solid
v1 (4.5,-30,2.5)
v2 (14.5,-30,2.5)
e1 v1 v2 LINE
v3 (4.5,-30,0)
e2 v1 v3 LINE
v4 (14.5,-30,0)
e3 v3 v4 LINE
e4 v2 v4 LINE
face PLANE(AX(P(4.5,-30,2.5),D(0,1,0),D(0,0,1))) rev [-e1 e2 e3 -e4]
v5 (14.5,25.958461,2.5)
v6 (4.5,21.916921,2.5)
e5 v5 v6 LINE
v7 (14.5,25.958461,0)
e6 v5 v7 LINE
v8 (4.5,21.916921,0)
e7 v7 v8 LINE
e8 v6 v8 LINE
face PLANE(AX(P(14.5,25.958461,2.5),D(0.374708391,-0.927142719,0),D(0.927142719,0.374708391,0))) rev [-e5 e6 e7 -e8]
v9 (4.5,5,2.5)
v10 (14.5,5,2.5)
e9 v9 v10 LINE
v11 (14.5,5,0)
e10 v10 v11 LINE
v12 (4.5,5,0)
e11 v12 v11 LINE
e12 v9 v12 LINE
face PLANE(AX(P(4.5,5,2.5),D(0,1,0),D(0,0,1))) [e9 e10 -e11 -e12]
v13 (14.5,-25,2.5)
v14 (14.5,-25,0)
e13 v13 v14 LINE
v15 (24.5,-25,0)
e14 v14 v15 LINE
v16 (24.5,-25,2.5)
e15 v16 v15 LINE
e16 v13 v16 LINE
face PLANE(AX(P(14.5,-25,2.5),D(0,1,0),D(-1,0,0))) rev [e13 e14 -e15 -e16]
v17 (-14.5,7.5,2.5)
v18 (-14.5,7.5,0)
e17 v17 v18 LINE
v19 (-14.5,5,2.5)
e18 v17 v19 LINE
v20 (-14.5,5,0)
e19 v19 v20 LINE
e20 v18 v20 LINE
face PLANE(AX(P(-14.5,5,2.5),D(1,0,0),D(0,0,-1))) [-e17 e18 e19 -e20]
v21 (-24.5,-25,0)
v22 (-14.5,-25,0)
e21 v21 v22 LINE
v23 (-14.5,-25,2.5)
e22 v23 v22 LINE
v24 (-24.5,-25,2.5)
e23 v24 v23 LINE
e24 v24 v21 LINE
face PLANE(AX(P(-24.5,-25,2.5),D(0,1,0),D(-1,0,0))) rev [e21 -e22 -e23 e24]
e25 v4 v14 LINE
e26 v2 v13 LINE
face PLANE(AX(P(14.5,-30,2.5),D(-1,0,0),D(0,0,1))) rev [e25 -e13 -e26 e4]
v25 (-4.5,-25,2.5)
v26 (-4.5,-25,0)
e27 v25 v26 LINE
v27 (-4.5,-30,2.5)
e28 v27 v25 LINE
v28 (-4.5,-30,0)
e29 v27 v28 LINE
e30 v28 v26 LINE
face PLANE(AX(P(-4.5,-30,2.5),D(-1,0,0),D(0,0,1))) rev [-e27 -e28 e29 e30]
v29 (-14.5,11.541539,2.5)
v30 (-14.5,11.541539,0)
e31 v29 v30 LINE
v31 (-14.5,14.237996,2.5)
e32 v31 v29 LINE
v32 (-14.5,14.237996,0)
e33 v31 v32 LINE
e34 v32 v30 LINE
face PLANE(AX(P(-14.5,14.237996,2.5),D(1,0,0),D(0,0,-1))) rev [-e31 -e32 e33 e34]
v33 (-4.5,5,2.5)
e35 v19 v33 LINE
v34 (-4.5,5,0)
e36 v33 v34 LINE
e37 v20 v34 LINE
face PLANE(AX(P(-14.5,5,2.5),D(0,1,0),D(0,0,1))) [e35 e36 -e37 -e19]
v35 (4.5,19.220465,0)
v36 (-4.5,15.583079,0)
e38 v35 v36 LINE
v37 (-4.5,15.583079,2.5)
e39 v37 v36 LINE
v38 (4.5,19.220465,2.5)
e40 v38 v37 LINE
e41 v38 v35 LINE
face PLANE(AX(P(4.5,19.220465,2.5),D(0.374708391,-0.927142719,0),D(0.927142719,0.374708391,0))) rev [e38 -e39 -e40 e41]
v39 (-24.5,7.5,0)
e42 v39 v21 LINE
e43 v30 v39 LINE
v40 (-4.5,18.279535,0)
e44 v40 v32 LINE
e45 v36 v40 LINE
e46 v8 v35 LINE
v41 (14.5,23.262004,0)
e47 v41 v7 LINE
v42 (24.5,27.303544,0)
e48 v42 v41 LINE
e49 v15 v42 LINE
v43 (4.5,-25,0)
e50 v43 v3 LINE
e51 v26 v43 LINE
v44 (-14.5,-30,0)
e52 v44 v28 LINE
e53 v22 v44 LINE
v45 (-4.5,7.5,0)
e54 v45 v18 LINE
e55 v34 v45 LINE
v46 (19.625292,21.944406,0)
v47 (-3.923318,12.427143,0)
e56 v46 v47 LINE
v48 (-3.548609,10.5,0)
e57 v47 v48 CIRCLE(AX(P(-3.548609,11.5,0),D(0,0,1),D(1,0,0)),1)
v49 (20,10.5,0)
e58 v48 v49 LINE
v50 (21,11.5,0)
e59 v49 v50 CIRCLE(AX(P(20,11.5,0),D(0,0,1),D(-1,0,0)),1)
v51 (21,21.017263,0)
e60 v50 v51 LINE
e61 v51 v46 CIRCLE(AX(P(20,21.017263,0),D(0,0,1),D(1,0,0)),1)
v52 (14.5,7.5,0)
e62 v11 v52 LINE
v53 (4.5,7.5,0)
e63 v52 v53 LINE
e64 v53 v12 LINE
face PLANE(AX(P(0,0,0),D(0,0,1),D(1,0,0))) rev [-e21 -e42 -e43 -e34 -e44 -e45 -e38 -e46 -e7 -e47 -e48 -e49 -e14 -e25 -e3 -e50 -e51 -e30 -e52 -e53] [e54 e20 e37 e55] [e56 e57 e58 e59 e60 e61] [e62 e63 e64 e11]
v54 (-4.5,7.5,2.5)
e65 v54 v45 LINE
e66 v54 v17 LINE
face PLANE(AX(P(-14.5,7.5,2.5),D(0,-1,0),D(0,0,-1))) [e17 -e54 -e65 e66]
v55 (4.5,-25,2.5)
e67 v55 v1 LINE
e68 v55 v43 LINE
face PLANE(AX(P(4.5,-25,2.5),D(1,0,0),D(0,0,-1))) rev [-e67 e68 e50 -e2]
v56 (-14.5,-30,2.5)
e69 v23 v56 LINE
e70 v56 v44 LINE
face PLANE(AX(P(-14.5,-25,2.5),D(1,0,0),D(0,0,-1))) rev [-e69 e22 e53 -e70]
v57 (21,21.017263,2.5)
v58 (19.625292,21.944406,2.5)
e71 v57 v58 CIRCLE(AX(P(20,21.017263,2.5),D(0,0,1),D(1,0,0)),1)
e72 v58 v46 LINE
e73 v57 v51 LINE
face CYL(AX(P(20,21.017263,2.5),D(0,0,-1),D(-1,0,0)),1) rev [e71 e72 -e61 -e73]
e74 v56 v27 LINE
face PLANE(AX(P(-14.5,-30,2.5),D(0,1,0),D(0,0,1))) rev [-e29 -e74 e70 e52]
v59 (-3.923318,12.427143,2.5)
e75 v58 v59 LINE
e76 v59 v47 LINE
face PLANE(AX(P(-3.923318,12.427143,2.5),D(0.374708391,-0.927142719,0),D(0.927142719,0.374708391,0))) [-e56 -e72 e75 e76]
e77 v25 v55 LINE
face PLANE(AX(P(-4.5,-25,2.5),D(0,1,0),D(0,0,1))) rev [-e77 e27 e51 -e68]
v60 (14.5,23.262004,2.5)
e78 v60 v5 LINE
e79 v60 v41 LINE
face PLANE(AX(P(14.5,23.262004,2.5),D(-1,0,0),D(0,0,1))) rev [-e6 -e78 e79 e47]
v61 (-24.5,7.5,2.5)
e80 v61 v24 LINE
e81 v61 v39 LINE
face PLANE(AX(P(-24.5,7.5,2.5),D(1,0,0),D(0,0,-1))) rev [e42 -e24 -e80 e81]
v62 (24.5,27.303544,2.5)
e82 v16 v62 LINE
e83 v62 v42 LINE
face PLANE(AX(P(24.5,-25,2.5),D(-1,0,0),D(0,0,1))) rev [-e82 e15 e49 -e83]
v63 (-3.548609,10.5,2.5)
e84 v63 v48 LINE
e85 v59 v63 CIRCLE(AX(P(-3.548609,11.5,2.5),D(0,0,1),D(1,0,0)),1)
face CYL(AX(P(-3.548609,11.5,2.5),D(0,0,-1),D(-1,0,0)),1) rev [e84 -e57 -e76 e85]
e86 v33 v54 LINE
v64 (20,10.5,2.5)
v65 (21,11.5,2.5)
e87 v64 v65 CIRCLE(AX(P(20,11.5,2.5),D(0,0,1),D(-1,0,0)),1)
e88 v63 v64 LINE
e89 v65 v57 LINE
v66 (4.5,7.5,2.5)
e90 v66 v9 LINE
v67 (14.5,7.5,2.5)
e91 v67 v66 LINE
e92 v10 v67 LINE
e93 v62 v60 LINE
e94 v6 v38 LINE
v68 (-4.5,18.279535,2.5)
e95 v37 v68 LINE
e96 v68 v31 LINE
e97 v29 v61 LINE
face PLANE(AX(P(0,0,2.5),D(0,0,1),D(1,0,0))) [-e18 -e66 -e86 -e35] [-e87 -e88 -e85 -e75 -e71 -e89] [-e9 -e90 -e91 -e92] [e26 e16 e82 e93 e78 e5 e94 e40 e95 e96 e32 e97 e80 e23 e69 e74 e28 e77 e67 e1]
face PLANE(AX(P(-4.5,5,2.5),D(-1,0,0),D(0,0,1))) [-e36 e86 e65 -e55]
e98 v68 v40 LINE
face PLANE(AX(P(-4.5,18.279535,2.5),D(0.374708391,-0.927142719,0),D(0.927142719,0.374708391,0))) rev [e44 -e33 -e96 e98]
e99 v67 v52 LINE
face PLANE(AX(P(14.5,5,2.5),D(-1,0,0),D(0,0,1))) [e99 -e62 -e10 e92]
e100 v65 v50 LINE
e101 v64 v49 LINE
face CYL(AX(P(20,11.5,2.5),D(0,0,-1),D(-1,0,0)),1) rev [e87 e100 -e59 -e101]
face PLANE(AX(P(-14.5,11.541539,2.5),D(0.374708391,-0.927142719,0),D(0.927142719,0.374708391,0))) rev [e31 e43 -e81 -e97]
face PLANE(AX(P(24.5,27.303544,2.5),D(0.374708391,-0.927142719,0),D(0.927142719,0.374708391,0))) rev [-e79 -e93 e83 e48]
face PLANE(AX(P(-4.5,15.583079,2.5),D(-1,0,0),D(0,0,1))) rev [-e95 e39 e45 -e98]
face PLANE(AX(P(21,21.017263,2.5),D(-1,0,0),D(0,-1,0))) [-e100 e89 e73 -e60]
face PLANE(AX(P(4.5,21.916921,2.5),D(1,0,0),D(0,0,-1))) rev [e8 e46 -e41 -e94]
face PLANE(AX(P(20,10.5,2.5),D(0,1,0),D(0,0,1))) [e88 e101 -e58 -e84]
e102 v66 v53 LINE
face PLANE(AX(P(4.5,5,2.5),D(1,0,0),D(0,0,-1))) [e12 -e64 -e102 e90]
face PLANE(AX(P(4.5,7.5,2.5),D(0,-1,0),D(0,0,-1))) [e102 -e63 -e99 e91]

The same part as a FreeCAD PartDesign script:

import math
import FreeCAD as App
import Part
import Sketcher
Q = App.Units.Quantity


def add_polygon(sketch, points):
    """Adds a closed chain of lines whose ends are joined by coincident constraints."""
    first, n = sketch.GeometryCount, len(points)
    for a, b in zip(points, points[1:] + points[:1]):
        sketch.addGeometry(Part.LineSegment(App.Vector(*a, 0), App.Vector(*b, 0)), False)
    for i in range(n):
        sketch.addConstraint(Sketcher.Constraint("Coincident", first + i, 2, first + (i + 1) % n, 1))

doc = App.newDocument("Part")
body = doc.addObject("PartDesign::Body", "Body")

# Sketch on XY plane
sketch1 = body.newObject("Sketcher::SketchObject", "Sketch")
sketch1.AttachmentSupport = (doc.getObject("XY_Plane"), [""])
sketch1.MapMode = "FlatFace"
add_polygon(sketch1, [(-24.5, -25), (-14.5, -25), (-14.5, -30), (-4.5, -30), (-4.5, -25), (4.5, -25), (4.5, -30), (14.5, -30), (14.5, -25), (24.5, -25), (24.5, 27.303544), (14.5, 23.262004), (14.5, 25.958461), (4.5, 21.916921), (4.5, 19.220465), (-4.5, 15.583079), (-4.5, 18.279535), (-14.5, 14.237996), (-14.5, 11.541539), (-24.5, 7.5)])  # lines 0-19
add_polygon(sketch1, [(-4.5, 5), (-14.5, 5), (-14.5, 7.5), (-4.5, 7.5)])  # lines 20-23
add_polygon(sketch1, [(14.5, 5), (4.5, 5), (4.5, 7.5), (14.5, 7.5)])  # lines 24-27
sketch1.addGeometry(Part.ArcOfCircle(Part.Circle(App.Vector(20, 21.017263, 0), App.Vector(0, 0, 1), 1), math.radians(0), math.radians(112.006291)), False)  # 28
sketch1.addGeometry(Part.LineSegment(App.Vector(21, 21.017263, 0), App.Vector(21, 11.5, 0)), False)  # 29
sketch1.addGeometry(Part.ArcOfCircle(Part.Circle(App.Vector(20, 11.5, 0), App.Vector(0, 0, 1), 1), math.radians(-90), math.radians(0)), False)  # 30
sketch1.addGeometry(Part.LineSegment(App.Vector(20, 10.5, 0), App.Vector(-3.548609, 10.5, 0)), False)  # 31
sketch1.addGeometry(Part.ArcOfCircle(Part.Circle(App.Vector(-3.548609, 11.5, 0), App.Vector(0, 0, 1), 1), math.radians(112.006291), math.radians(270)), False)  # 32
sketch1.addGeometry(Part.LineSegment(App.Vector(-3.923318, 12.427143, 0), App.Vector(19.625292, 21.944406, 0)), False)  # 33
sketch1.addConstraint([
    Sketcher.Constraint("Tangent", 28, 1, 29, 1),
    Sketcher.Constraint("Tangent", 29, 2, 30, 2),
    Sketcher.Constraint("Tangent", 30, 1, 31, 1),
    Sketcher.Constraint("Tangent", 31, 2, 32, 2),
    Sketcher.Constraint("Tangent", 32, 1, 33, 1),
    Sketcher.Constraint("Tangent", 33, 2, 28, 2),
    Sketcher.Constraint("Horizontal", 0),
    Sketcher.Constraint("Vertical", 1),
    Sketcher.Constraint("Horizontal", 2),
    Sketcher.Constraint("Vertical", 3),
    Sketcher.Constraint("Horizontal", 4),
    Sketcher.Constraint("Vertical", 5),
    Sketcher.Constraint("Horizontal", 6),
    Sketcher.Constraint("Vertical", 7),
    Sketcher.Constraint("Horizontal", 8),
    Sketcher.Constraint("Vertical", 9),
    Sketcher.Constraint("Vertical", 11),
    Sketcher.Constraint("Vertical", 13),
    Sketcher.Constraint("Vertical", 15),
    Sketcher.Constraint("Vertical", 17),
    Sketcher.Constraint("Vertical", 19),
    Sketcher.Constraint("Horizontal", 20),
    Sketcher.Constraint("Vertical", 21),
    Sketcher.Constraint("Horizontal", 22),
    Sketcher.Constraint("Vertical", 23),
    Sketcher.Constraint("Horizontal", 24),
    Sketcher.Constraint("Vertical", 25),
    Sketcher.Constraint("Horizontal", 26),
    Sketcher.Constraint("Vertical", 27),
    Sketcher.Constraint("Vertical", 29),
    Sketcher.Constraint("Horizontal", 31),
    Sketcher.Constraint("Equal", 28, 30),
    Sketcher.Constraint("Equal", 30, 32),
    Sketcher.Constraint("Symmetric", 2, 2, 5, 2, -2),
    Sketcher.Constraint("Symmetric", 0, 2, 7, 2, -2),
    Sketcher.Constraint("Symmetric", 23, 2, 24, 2, -2),
    Sketcher.Constraint("Symmetric", 21, 2, 26, 2, -2),
    Sketcher.Constraint("Parallel", 10, 12),
    Sketcher.Constraint("Parallel", 12, 14),
    Sketcher.Constraint("Parallel", 14, 16),
    Sketcher.Constraint("Parallel", 16, 18),
    Sketcher.Constraint("Parallel", 18, 33),
    Sketcher.Constraint("Horizontal", 0, 2, 3, 2),
    Sketcher.Constraint("Horizontal", 18, 2, 21, 2),
    Sketcher.Constraint("Vertical", 7, 2, 10, 2),
    Sketcher.Constraint("Vertical", 5, 2, 12, 2),
    Sketcher.Constraint("Vertical", 3, 2, 14, 2),
    Sketcher.Constraint("Vertical", 1, 2, 16, 2),
    Sketcher.Constraint("Vertical", 17, 2, 20, 2),
    Sketcher.Constraint("Vertical", 15, 2, 22, 2),
    Sketcher.Constraint("Equal", 0, 2),
    Sketcher.Constraint("Equal", 6, 8),
    Sketcher.Constraint("Equal", 11, 13),
    Sketcher.Constraint("Equal", 13, 15),
    Sketcher.Constraint("Equal", 15, 17),
    Sketcher.Constraint("Radius", 28, Q("1 mm")),
    Sketcher.Constraint("DistanceX", 0, 1, 0, 2, Q("10 mm")),
    Sketcher.Constraint("DistanceX", 4, 1, 4, 2, Q("9 mm")),
    Sketcher.Constraint("DistanceY", 1, 2, 1, 1, Q("5 mm")),
    Sketcher.Constraint("DistanceY", 19, 2, 19, 1, Q("32.5 mm")),
    Sketcher.Constraint("DistanceY", 21, 1, 21, 2, Q("2.5 mm")),
    Sketcher.Constraint("DistanceX", -1, 1, 28, 3, Q("20 mm")),
    Sketcher.Constraint("DistanceY", 0, 2, -1, 1, Q("25 mm")),
    Sketcher.Constraint("DistanceY", 18, 2, 32, 3, Q("4 mm")),
    Sketcher.Constraint("DistanceX", 31, 2, 31, 1, Q("23.548609 mm")),
    Sketcher.Constraint("DistanceY", 13, 2, 28, 3, Q("1.796799 mm")),
    Sketcher.Constraint("DistanceY", 11, 1, 11, 2, Q("2.696456 mm")),
])
pad1 = body.newObject("PartDesign::Pad", "Pad")
pad1.Profile = sketch1
pad1.Length = 2.5

doc.recompute()
